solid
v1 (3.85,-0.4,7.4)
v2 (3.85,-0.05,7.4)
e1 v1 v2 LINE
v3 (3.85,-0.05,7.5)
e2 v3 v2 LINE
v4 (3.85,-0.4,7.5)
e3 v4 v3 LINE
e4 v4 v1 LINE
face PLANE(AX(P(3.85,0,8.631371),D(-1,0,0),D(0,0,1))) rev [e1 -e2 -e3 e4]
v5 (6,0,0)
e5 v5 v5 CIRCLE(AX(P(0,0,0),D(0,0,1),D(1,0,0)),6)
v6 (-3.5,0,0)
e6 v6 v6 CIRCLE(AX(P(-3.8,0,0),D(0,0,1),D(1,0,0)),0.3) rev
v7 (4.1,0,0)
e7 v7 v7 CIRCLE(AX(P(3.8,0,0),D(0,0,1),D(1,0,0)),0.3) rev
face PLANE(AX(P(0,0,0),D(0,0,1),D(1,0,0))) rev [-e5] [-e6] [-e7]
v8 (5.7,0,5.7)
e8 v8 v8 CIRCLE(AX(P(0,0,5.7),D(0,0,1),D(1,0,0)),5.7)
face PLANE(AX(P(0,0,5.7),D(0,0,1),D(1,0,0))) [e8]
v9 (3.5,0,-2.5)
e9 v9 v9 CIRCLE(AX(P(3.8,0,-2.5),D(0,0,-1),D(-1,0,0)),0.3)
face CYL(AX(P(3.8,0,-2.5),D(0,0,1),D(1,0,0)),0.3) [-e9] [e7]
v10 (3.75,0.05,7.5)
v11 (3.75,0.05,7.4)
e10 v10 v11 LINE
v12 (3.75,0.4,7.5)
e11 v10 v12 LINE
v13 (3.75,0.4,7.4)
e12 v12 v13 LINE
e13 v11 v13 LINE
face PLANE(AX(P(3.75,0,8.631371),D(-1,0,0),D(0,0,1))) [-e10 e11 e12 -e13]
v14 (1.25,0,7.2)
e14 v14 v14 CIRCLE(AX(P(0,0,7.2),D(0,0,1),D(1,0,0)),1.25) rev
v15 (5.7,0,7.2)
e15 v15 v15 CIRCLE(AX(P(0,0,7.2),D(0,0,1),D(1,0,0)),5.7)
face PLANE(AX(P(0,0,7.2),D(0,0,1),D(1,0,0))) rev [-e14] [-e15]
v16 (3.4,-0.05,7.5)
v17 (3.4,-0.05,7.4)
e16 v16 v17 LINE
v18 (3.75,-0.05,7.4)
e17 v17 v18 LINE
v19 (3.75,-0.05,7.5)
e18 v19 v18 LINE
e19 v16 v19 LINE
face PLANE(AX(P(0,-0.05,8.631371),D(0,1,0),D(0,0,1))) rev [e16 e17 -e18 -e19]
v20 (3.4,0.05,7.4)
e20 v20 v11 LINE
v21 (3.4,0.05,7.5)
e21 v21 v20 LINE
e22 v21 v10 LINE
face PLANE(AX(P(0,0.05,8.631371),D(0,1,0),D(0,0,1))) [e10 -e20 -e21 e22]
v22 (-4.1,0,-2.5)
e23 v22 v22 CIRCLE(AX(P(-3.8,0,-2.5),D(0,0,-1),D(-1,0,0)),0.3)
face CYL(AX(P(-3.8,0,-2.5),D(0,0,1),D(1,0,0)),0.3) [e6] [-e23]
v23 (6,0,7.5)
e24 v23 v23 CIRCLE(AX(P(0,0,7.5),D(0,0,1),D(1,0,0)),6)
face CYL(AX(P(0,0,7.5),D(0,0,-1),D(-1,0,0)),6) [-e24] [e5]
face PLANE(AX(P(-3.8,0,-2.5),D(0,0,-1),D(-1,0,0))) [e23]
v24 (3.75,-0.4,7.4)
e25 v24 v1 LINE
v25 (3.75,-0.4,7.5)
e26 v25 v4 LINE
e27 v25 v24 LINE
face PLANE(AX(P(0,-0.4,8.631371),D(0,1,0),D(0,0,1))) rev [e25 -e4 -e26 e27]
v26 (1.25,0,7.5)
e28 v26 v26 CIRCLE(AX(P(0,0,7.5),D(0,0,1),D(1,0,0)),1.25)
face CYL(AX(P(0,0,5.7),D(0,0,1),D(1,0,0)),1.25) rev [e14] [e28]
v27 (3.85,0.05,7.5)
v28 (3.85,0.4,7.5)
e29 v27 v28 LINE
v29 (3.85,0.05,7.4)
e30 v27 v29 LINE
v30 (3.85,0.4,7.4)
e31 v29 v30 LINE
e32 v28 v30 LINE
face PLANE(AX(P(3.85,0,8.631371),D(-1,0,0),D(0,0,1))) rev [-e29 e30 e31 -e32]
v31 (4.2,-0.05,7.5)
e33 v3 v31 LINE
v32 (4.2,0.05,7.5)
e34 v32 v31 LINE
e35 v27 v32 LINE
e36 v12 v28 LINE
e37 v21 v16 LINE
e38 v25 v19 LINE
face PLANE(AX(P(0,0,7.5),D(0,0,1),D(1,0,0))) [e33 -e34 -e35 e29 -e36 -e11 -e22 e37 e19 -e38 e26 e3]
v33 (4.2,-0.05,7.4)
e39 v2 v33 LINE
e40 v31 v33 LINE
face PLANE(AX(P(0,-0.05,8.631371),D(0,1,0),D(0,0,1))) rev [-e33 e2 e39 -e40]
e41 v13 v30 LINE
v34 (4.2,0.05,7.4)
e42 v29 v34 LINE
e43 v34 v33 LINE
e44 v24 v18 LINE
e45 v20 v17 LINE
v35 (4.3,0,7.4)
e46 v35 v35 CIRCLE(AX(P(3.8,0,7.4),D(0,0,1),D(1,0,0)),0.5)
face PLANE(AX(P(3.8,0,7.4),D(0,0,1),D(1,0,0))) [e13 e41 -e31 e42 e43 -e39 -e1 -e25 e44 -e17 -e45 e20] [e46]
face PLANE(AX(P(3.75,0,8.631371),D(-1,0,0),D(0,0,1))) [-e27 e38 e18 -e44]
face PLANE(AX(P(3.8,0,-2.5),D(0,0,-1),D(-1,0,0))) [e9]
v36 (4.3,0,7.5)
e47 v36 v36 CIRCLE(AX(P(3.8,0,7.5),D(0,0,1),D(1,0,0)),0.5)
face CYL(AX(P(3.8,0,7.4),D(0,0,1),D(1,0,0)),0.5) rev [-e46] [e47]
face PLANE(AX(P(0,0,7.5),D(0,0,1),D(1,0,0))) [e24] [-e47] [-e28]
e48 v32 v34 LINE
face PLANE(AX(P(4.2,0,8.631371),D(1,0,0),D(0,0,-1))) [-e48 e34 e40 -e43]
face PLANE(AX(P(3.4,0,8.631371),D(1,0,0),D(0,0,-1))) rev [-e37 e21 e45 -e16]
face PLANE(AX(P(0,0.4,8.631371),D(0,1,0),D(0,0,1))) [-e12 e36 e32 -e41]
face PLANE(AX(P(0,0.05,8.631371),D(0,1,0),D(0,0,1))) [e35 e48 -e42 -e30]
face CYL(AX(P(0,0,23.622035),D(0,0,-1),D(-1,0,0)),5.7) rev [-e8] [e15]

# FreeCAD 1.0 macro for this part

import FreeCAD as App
import Part
import Sketcher
from FreeCAD import Vector

doc = App.newDocument("Part")
params = doc.addObject("Spreadsheet::Sheet", "Params")
for row, (alias, value) in enumerate([
    ("sketch1_diameter", "12 mm"),
    ("pad1_length", "7.5 mm"),
    ("sketch2_diameter", "0.6 mm"),
    ("pad2_length", "2.5 mm"),
    ("sketch3_diameter", "2.5 mm"),
    ("pocket1_length", "1.8 mm"),
    ("sketch4_diameter", "11.4 mm"),
    ("pocket2_length", "1.5 mm"),
    ("sketch5_diameter", "1 mm"),
    ("pocket3_length", "0.1 mm"),
    ("sketch6_width", "0.1 mm"),
    ("sketch6_width2", "0.35 mm"),
    ("pad3_length", "0.1 mm"),
], start=1):
    params.set(f"A{row}", alias)
    params.set(f"B{row}", "=" + value)
    params.setAlias(f"B{row}", alias)

body = doc.addObject("PartDesign::Body", "Body")

sketch1 = body.newObject("Sketcher::SketchObject", "Sketch")
sketch1.AttachmentSupport = (doc.getObject("XY_Plane"), [""])
sketch1.MapMode = "FlatFace"
sketch1.addGeometry(Part.Circle(Vector(0, 0, 0), Vector(0, 0, 1), 6), False)
sketch1.addConstraint(Sketcher.Constraint("Coincident", 0, 3, -1, 1))
sketch1.addConstraint(Sketcher.Constraint("Diameter", 0, 12.0))
sketch1.setExpression("Constraints[1]", "Params.sketch1_diameter")
pad1 = body.newObject("PartDesign::Pad", "Pad")
pad1.Profile = sketch1
pad1.setExpression("Length", "Params.pad1_length")

sketch2 = body.newObject("Sketcher::SketchObject", "Sketch001")
sketch2.AttachmentSupport = (doc.getObject("XY_Plane"), [""])
sketch2.MapMode = "FlatFace"
sketch2.addGeometry(Part.Circle(Vector(-3.8, 0, 0), Vector(0, 0, 1), 0.3), False)
sketch2.addGeometry(Part.Circle(Vector(3.8, 0, 0), Vector(0, 0, 1), 0.3), False)
sketch2.addConstraint(Sketcher.Constraint("Equal", 0, 1))
sketch2.addConstraint(Sketcher.Constraint("Symmetric", 0, 3, 1, 3, -1, 1))
sketch2.addConstraint(Sketcher.Constraint("PointOnObject", 0, 3, -1))
sketch2.addConstraint(Sketcher.Constraint("Diameter", 0, 0.6))
sketch2.addConstraint(Sketcher.Constraint("DistanceX", 0, 3, -1, 1, 3.8))
sketch2.setExpression("Constraints[3]", "Params.sketch2_diameter")
pad2 = body.newObject("PartDesign::Pad", "Pad001")
pad2.Profile = sketch2
pad2.setExpression("Length", "Params.pad2_length")
pad2.Reversed = True

sketch3 = body.newObject("Sketcher::SketchObject", "Sketch002")
sketch3.AttachmentSupport = (doc.getObject("XY_Plane"), [""])
sketch3.MapMode = "FlatFace"
sketch3.AttachmentOffset = App.Placement(Vector(0, 0, 7.5), App.Rotation())
sketch3.addGeometry(Part.Circle(Vector(0, 0, 0), Vector(0, 0, 1), 1.2), False)
sketch3.addConstraint(Sketcher.Constraint("Coincident", 0, 3, -1, 1))
sketch3.addConstraint(Sketcher.Constraint("Diameter", 0, 2.5))
sketch3.setExpression("Constraints[1]", "Params.sketch3_diameter")
pocket1 = body.newObject("PartDesign::Pocket", "Pocket")
pocket1.Profile = sketch3
pocket1.setExpression("Length", "Params.pocket1_length")

sketch4 = body.newObject("Sketcher::SketchObject", "Sketch003")
sketch4.AttachmentSupport = (doc.getObject("XY_Plane"), [""])
sketch4.MapMode = "FlatFace"
sketch4.AttachmentOffset = App.Placement(Vector(0, 0, 5.7), App.Rotation())
sketch4.addGeometry(Part.Circle(Vector(0, 0, 0), Vector(0, 0, 1), 6), False)
sketch4.addConstraint(Sketcher.Constraint("Coincident", 0, 3, -1, 1))
sketch4.addConstraint(Sketcher.Constraint("Diameter", 0, 11.4))
sketch4.setExpression("Constraints[1]", "Params.sketch4_diameter")
pocket2 = body.newObject("PartDesign::Pocket", "Pocket001")
pocket2.Profile = sketch4
pocket2.setExpression("Length", "Params.pocket2_length")
pocket2.Reversed = True

sketch5 = body.newObject("Sketcher::SketchObject", "Sketch004")
sketch5.AttachmentSupport = (doc.getObject("XY_Plane"), [""])
sketch5.MapMode = "FlatFace"
sketch5.AttachmentOffset = App.Placement(Vector(0, 0, 7.5), App.Rotation())
sketch5.addGeometry(Part.Circle(Vector(3.8, 0, 0), Vector(0, 0, 1), 0.5), False)
sketch5.addConstraint(Sketcher.Constraint("PointOnObject", 0, 3, -1))
sketch5.addConstraint(Sketcher.Constraint("Diameter", 0, 1.0))
sketch5.addConstraint(Sketcher.Constraint("DistanceX", -1, 1, 0, 3, 3.8))
sketch5.setExpression("Constraints[1]", "Params.sketch5_diameter")
pocket3 = body.newObject("PartDesign::Pocket", "Pocket002")
pocket3.Profile = sketch5
pocket3.setExpression("Length", "Params.pocket3_length")

sketch6 = body.newObject("Sketcher::SketchObject", "Sketch005")
sketch6.AttachmentSupport = (doc.getObject("XY_Plane"), [""])
sketch6.MapMode = "FlatFace"
sketch6.AttachmentOffset = App.Placement(Vector(0, 0, 7.4), App.Rotation())
sketch6.addGeometry(Part.LineSegment(Vector(3.85, -0.05, 0), Vector(4.2, -0.05, 0)), False)
sketch6.addGeometry(Part.LineSegment(Vector(4.2, -0.05, 0), Vector(4.2, 0.05, 0)), False)
sketch6.addGeometry(Part.LineSegment(Vector(4.2, 0.05, 0), Vector(3.85, 0.05, 0)), False)
sketch6.addGeometry(Part.LineSegment(Vector(3.85, 0.05, 0), Vector(3.85, 0.4, 0)), False)
sketch6.addGeometry(Part.LineSegment(Vector(3.85, 0.4, 0), Vector(3.75, 0.4, 0)), False)
sketch6.addGeometry(Part.LineSegment(Vector(3.75, 0.4, 0), Vector(3.75, 0.05, 0)), False)
sketch6.addGeometry(Part.LineSegment(Vector(3.75, 0.05, 0), Vector(3.4, 0.05, 0)), False)
sketch6.addGeometry(Part.LineSegment(Vector(3.4, 0.05, 0), Vector(3.4, -0.05, 0)), False)
sketch6.addGeometry(Part.LineSegment(Vector(3.4, -0.05, 0), Vector(3.75, -0.05, 0)), False)
sketch6.addGeometry(Part.LineSegment(Vector(3.75, -0.05, 0), Vector(3.75, -0.4, 0)), False)
sketch6.addGeometry(Part.LineSegment(Vector(3.75, -0.4, 0), Vector(3.85, -0.4, 0)), False)
sketch6.addGeometry(Part.LineSegment(Vector(3.85, -0.4, 0), Vector(3.85, -0.05, 0)), False)
sketch6.addConstraint(Sketcher.Constraint("Coincident", 0, 2, 1, 1))
sketch6.addConstraint(Sketcher.Constraint("Coincident", 1, 2, 2, 1))
sketch6.addConstraint(Sketcher.Constraint("Coincident", 2, 2, 3, 1))
sketch6.addConstraint(Sketcher.Constraint("Coincident", 3, 2, 4, 1))
sketch6.addConstraint(Sketcher.Constraint("Coincident", 4, 2, 5, 1))
sketch6.addConstraint(Sketcher.Constraint("Coincident", 5, 2, 6, 1))
sketch6.addConstraint(Sketcher.Constraint("Coincident", 6, 2, 7, 1))
sketch6.addConstraint(Sketcher.Constraint("Coincident", 7, 2, 8, 1))
sketch6.addConstraint(Sketcher.Constraint("Coincident", 8, 2, 9, 1))
sketch6.addConstraint(Sketcher.Constraint("Coincident", 9, 2, 10, 1))
sketch6.addConstraint(Sketcher.Constraint("Coincident", 10, 2, 11, 1))
sketch6.addConstraint(Sketcher.Constraint("Coincident", 11, 2, 0, 1))
sketch6.addConstraint(Sketcher.Constraint("Horizontal", 0))
sketch6.addConstraint(Sketcher.Constraint("Vertical", 1))
sketch6.addConstraint(Sketcher.Constraint("Horizontal", 2))
sketch6.addConstraint(Sketcher.Constraint("Vertical", 3))
sketch6.addConstraint(Sketcher.Constraint("Horizontal", 4))
sketch6.addConstraint(Sketcher.Constraint("Vertical", 5))
sketch6.addConstraint(Sketcher.Constraint("Horizontal", 6))
sketch6.addConstraint(Sketcher.Constraint("Vertical", 7))
sketch6.addConstraint(Sketcher.Constraint("Horizontal", 8))
sketch6.addConstraint(Sketcher.Constraint("Vertical", 9))
sketch6.addConstraint(Sketcher.Constraint("Horizontal", 10))
sketch6.addConstraint(Sketcher.Constraint("Vertical", 11))
sketch6.addConstraint(Sketcher.Constraint("Symmetric", 5, 2, 8, 2, -1))
sketch6.addConstraint(Sketcher.Constraint("Symmetric", 3, 2, 10, 2, -1))
sketch6.addConstraint(Sketcher.Constraint("Horizontal", 2, 2, 5, 2))
sketch6.addConstraint(Sketcher.Constraint("Horizontal", 0, 2, 7, 2))
sketch6.addConstraint(Sketcher.Constraint("Equal", 2, 6))
sketch6.addConstraint(Sketcher.Constraint("Equal", 10, 1))
sketch6.addConstraint(Sketcher.Constraint("Equal", 8, 3))
sketch6.addConstraint(Sketcher.Constraint("DistanceX", 4, 2, 4, 1, 0.1))
sketch6.addConstraint(Sketcher.Constraint("DistanceX", 0, 1, 0, 2, 0.35))
sketch6.addConstraint(Sketcher.Constraint("DistanceX", -1, 1, 0, 2, 4.2))
sketch6.setExpression("Constraints[31]", "Params.sketch6_width")
sketch6.setExpression("Constraints[32]", "Params.sketch6_width2")
pad3 = body.newObject("PartDesign::Pad", "Pad002")
pad3.Profile = sketch6
pad3.setExpression("Length", "Params.pad3_length")

doc.recompute()
